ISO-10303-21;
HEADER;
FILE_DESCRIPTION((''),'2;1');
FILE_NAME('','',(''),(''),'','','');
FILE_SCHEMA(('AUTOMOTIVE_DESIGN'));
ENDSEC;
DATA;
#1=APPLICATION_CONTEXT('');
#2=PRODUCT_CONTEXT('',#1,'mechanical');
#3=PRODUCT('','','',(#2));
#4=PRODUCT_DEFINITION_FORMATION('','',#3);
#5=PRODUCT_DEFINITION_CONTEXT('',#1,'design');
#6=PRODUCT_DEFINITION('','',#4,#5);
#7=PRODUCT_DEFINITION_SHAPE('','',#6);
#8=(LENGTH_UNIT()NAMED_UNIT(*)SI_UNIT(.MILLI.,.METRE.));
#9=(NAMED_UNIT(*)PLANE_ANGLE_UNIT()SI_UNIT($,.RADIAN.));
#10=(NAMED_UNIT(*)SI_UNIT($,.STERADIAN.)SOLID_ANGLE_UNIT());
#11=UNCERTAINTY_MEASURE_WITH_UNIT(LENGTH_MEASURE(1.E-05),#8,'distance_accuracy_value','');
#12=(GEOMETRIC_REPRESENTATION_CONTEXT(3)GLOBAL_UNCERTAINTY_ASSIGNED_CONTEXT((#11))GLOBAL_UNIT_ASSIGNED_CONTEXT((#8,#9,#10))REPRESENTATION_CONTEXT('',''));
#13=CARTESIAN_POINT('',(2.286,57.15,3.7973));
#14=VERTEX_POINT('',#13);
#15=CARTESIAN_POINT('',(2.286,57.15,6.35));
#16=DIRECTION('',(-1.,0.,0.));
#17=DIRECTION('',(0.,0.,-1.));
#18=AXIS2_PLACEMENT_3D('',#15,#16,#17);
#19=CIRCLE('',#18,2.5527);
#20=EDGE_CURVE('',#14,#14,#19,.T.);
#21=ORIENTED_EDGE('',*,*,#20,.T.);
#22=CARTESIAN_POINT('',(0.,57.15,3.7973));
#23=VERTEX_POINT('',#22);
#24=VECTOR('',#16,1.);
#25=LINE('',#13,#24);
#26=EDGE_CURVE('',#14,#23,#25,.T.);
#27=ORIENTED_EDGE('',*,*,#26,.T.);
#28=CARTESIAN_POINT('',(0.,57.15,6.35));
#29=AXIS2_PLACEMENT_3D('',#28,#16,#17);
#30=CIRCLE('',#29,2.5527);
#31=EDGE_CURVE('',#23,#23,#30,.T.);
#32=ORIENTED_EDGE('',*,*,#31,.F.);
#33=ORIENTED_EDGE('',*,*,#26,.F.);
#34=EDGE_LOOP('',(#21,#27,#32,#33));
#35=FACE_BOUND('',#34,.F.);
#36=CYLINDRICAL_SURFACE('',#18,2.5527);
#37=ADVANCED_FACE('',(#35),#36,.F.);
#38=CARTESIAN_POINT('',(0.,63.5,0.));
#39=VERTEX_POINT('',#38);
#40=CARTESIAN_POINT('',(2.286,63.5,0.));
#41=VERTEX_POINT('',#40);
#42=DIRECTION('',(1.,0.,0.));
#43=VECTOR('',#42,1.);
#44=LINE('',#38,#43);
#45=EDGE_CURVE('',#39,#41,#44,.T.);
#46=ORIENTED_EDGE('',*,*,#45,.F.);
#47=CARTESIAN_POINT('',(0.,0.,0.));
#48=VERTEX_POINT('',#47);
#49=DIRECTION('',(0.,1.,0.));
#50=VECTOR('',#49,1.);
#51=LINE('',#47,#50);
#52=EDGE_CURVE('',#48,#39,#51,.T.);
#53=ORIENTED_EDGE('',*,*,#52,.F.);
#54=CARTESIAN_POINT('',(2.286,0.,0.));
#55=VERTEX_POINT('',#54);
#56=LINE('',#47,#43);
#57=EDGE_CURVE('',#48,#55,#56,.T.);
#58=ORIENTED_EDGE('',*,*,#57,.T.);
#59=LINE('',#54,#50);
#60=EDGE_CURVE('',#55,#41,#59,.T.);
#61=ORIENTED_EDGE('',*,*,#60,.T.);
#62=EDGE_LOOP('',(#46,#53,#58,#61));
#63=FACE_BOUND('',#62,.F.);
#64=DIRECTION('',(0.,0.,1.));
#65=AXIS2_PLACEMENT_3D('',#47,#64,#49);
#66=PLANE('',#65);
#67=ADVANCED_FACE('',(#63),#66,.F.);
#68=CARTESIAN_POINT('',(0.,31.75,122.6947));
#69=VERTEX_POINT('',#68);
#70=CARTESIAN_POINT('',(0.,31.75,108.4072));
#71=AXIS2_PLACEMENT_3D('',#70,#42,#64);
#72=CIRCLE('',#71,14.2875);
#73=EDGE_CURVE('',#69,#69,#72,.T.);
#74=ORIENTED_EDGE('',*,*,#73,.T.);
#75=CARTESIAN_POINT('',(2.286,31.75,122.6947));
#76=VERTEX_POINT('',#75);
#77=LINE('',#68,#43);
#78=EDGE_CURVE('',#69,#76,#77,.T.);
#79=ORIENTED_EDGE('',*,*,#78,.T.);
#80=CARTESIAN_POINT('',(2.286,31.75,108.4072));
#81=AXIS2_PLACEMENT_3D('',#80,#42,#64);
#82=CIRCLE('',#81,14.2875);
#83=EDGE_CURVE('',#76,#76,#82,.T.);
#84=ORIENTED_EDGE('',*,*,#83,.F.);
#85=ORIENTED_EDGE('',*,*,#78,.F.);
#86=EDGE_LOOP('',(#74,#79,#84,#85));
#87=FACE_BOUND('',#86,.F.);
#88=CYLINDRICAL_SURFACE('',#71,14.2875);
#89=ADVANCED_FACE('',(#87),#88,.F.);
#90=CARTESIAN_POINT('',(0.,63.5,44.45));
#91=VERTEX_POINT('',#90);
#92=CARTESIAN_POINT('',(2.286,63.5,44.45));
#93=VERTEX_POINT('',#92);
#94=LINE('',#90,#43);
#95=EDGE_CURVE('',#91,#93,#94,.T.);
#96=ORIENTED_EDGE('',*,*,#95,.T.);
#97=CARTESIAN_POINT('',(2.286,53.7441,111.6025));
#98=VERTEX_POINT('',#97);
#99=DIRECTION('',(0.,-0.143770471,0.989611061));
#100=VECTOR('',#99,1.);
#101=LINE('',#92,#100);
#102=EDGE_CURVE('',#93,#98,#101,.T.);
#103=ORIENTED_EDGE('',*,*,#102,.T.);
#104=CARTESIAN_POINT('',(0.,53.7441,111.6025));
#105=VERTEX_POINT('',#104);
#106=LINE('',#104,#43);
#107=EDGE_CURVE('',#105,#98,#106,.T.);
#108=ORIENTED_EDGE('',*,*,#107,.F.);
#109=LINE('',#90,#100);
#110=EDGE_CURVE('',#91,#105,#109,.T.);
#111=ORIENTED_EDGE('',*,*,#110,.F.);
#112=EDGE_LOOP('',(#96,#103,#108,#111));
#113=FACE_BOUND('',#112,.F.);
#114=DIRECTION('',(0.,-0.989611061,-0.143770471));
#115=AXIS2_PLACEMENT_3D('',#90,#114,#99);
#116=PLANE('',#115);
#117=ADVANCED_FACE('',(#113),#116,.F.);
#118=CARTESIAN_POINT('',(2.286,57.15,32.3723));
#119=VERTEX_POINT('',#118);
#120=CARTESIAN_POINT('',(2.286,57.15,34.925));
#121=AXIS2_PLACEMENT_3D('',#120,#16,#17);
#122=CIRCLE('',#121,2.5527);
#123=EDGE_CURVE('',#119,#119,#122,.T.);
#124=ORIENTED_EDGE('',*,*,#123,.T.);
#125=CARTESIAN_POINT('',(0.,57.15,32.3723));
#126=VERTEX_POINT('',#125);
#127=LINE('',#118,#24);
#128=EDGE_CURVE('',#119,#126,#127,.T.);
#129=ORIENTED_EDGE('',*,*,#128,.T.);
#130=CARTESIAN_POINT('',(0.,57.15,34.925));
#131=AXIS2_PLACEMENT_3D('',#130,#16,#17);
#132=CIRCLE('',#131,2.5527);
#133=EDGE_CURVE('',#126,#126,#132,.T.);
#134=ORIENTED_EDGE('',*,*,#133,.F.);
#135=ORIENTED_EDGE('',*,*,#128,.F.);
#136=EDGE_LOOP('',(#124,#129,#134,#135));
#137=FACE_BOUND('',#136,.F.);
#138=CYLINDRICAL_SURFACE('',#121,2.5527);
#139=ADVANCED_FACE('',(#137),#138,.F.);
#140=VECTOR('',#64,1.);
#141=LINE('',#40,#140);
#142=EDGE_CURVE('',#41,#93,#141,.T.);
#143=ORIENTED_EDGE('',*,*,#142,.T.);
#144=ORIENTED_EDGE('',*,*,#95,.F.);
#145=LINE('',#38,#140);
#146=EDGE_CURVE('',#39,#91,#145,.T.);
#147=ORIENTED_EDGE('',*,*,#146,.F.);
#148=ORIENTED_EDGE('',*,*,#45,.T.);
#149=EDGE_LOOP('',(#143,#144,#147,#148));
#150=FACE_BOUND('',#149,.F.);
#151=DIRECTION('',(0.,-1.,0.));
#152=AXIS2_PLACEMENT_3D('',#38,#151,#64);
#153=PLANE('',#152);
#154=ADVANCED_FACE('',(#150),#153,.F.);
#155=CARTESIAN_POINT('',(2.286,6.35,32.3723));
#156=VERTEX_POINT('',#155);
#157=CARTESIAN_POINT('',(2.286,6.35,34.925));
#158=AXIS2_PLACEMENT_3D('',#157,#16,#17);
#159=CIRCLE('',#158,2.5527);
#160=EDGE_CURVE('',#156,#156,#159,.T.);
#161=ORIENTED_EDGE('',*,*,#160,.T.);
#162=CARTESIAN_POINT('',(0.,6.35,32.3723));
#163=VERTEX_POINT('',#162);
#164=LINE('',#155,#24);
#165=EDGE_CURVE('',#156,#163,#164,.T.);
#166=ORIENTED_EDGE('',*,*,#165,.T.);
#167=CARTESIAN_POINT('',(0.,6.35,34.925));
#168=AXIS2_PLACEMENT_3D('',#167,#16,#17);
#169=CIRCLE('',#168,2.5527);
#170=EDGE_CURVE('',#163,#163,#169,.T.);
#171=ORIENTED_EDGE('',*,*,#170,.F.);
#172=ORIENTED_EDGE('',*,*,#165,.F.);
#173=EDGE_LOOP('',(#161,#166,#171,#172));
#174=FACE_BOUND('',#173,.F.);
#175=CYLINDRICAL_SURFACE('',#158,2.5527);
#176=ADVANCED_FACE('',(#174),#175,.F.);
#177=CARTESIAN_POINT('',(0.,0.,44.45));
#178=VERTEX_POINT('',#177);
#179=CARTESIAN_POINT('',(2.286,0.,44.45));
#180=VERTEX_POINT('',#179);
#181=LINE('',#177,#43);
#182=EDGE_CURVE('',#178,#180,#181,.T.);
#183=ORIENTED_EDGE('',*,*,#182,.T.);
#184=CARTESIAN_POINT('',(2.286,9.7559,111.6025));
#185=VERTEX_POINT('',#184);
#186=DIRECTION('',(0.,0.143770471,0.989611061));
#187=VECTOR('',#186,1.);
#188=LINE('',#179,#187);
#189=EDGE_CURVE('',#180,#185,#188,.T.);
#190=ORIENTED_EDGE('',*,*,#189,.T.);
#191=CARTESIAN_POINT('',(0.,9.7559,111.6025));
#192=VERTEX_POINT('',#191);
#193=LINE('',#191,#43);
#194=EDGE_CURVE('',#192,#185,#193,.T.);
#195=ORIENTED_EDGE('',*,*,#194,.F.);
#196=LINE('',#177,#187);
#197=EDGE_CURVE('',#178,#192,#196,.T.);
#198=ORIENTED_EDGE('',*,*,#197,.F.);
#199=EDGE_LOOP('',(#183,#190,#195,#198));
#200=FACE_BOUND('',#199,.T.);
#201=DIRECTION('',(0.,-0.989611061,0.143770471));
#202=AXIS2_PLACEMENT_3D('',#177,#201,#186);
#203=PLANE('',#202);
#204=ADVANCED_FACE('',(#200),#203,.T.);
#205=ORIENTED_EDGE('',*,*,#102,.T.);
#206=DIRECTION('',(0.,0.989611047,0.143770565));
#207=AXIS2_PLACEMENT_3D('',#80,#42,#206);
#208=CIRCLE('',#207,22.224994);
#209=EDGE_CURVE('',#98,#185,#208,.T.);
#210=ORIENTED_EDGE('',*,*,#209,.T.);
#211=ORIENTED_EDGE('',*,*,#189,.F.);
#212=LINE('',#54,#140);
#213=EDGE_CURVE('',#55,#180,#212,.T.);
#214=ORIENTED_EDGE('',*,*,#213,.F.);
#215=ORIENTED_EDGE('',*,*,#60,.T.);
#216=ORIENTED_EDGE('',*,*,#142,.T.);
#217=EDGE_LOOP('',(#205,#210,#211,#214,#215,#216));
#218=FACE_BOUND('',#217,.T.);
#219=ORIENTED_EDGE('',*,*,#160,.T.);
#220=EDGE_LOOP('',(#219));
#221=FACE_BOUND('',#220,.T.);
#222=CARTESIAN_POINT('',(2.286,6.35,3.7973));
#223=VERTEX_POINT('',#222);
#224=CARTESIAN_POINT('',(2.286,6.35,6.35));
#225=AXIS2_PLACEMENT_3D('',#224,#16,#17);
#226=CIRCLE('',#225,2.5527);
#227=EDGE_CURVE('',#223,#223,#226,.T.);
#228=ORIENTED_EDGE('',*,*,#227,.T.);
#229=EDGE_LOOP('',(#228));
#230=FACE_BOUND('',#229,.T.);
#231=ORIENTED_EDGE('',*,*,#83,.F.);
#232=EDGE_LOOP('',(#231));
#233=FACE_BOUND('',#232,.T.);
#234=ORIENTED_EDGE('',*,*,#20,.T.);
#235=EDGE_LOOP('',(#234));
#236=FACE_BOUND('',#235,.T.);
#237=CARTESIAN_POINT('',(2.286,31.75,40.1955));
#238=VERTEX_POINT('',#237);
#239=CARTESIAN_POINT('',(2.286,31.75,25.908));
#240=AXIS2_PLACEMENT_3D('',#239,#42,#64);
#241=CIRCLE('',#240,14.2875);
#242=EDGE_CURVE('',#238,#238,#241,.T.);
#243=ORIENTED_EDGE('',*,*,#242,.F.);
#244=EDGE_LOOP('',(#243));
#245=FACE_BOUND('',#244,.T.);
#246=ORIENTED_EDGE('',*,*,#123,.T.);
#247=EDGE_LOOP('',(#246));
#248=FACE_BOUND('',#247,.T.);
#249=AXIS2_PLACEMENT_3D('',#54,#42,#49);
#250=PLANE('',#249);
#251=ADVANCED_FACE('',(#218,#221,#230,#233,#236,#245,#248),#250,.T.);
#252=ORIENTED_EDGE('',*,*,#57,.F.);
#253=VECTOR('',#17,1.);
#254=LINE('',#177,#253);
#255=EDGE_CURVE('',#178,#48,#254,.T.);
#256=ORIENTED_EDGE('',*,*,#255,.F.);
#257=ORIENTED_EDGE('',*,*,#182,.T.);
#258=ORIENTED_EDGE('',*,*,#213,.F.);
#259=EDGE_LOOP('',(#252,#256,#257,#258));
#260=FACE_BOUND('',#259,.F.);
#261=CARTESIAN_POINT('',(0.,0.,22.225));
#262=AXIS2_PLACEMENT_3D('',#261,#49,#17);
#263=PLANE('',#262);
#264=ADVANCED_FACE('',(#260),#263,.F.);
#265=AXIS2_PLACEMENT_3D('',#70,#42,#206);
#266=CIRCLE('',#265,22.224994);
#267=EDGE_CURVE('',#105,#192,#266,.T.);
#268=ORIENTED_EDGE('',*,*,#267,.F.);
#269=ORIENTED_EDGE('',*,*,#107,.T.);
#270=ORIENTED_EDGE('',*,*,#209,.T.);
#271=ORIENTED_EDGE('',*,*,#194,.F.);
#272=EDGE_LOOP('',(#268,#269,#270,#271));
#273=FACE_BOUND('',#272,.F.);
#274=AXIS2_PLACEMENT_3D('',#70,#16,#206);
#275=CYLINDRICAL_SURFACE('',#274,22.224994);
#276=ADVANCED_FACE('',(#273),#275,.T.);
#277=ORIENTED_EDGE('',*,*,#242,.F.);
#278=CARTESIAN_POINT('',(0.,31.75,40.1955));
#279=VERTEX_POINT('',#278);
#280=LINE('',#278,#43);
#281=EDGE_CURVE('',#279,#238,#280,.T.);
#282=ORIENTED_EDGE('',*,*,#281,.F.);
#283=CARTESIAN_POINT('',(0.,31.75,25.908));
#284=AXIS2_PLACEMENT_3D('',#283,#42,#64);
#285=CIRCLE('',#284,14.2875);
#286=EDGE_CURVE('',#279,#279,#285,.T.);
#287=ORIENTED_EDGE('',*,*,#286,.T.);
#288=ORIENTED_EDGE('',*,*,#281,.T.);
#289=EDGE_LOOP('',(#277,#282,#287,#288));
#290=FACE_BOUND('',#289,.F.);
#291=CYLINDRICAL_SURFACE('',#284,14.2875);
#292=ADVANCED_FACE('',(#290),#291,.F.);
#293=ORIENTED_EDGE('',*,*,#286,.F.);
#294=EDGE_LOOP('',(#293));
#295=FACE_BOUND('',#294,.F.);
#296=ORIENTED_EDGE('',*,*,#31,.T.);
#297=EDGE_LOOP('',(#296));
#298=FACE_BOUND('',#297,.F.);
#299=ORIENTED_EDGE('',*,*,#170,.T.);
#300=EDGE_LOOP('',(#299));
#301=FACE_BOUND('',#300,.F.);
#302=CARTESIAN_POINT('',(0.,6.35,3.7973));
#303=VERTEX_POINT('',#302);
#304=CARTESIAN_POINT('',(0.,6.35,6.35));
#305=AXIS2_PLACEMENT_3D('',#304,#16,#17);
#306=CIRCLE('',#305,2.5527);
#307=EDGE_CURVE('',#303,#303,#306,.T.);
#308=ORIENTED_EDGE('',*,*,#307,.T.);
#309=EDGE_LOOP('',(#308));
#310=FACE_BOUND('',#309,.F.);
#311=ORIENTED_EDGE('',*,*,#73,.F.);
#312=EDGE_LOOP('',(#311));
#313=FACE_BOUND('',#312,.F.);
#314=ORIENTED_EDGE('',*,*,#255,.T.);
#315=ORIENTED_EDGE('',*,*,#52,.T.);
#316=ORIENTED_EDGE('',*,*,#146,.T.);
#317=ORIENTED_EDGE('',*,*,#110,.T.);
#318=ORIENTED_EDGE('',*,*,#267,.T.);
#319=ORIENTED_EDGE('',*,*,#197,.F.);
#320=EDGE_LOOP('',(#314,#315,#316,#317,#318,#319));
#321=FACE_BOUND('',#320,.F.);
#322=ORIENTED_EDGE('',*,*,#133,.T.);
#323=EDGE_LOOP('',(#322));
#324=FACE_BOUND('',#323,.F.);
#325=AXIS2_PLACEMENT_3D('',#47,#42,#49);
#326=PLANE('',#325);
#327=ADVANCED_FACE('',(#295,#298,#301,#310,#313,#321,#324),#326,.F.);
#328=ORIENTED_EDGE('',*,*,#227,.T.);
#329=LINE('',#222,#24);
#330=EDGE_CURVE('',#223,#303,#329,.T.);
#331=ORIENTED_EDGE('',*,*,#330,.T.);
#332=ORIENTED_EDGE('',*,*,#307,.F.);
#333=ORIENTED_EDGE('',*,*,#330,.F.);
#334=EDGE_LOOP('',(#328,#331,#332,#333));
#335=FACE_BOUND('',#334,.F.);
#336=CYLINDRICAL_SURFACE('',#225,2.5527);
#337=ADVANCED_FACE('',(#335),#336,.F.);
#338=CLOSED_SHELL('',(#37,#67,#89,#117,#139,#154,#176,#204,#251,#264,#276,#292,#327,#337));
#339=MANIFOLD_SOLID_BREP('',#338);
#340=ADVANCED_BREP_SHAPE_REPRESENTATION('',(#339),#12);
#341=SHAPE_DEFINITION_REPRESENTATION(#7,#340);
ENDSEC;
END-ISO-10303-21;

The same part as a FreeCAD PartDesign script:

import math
import FreeCAD as App
import Part
import Sketcher

V = App.Vector
Q = App.Units.Quantity

doc = App.newDocument("Part")
body = doc.addObject("PartDesign::Body", "Body")

# Sketch on YZ plane
sketch1 = body.newObject("Sketcher::SketchObject", "Sketch")
sketch1.AttachmentSupport = (doc.getObject("YZ_Plane"), [""])
sketch1.MapMode = "FlatFace"
sketch1.addGeometry(Part.LineSegment(V(0, 44.45, 0), V(0, 0, 0)), False)
sketch1.addGeometry(Part.LineSegment(V(0, 0, 0), V(63.5, 0, 0)), False)
sketch1.addGeometry(Part.LineSegment(V(63.5, 0, 0), V(63.5, 44.45, 0)), False)
sketch1.addGeometry(Part.LineSegment(V(63.5, 44.45, 0), V(53.7441, 111.6025, 0)), False)
sketch1.addGeometry(Part.ArcOfCircle(Part.Circle(V(31.75, 108.4072, 0), V(0, 0, 1), 22.224994), math.radians(8.266092), math.radians(171.733908)), False)
sketch1.addGeometry(Part.LineSegment(V(9.7559, 111.6025, 0), V(0, 44.45, 0)), False)
sketch1.addConstraint(Sketcher.Constraint("Coincident", 0, 2, 1, 1))
sketch1.addConstraint(Sketcher.Constraint("Coincident", 1, 2, 2, 1))
sketch1.addConstraint(Sketcher.Constraint("Coincident", 2, 2, 3, 1))
sketch1.addConstraint(Sketcher.Constraint("Tangent", 3, 2, 4, 1))
sketch1.addConstraint(Sketcher.Constraint("Tangent", 4, 2, 5, 1))
sketch1.addConstraint(Sketcher.Constraint("Coincident", 5, 2, 0, 1))
sketch1.addConstraint(Sketcher.Constraint("Vertical", 0))
sketch1.addConstraint(Sketcher.Constraint("Horizontal", 1))
sketch1.addConstraint(Sketcher.Constraint("Vertical", 2))
sketch1.addConstraint(Sketcher.Constraint("Coincident", 0, 2, -1, 1))
sketch1.addConstraint(Sketcher.Constraint("Horizontal", 3, 2, 4, 2))
sketch1.addConstraint(Sketcher.Constraint("Horizontal", 2, 2, 5, 2))
sketch1.addConstraint(Sketcher.Constraint("DistanceX", 1, 1, 1, 2, Q("2.5 in")))
sketch1.addConstraint(Sketcher.Constraint("Radius", 4, Q("0.875 in")))
sketch1.addConstraint(Sketcher.Constraint("DistanceY", 0, 2, 0, 1, Q("1.75 in")))
sketch1.addConstraint(Sketcher.Constraint("DistanceY", 2, 2, 4, 3, Q("2.518 in")))
pad1 = body.newObject("PartDesign::Pad", "Pad")
pad1.Profile = sketch1
pad1.Length = Q("0.09 in")

# Sketch on YZ plane
sketch2 = body.newObject("Sketcher::SketchObject", "Sketch001")
sketch2.AttachmentSupport = (doc.getObject("YZ_Plane"), [""])
sketch2.MapMode = "FlatFace"
sketch2.addGeometry(Part.Circle(V(31.75, 108.4072, 0), V(0, 0, 1), 14.2875), False)
sketch2.addGeometry(Part.Circle(V(31.75, 25.908, 0), V(0, 0, 1), 14.2875), False)
sketch2.addConstraint(Sketcher.Constraint("Equal", 0, 1))
sketch2.addConstraint(Sketcher.Constraint("Vertical", 0, 3, 1, 3))
sketch2.addConstraint(Sketcher.Constraint("Diameter", 0, Q("1.125 in")))
sketch2.addConstraint(Sketcher.Constraint("DistanceX", -1, 1, 0, 3, Q("1.25 in")))
sketch2.addConstraint(Sketcher.Constraint("DistanceY", -1, 1, 1, 3, Q("1.02 in")))
sketch2.addConstraint(Sketcher.Constraint("DistanceY", -1, 1, 0, 3, Q("4.268 in")))
doc.recompute()
hole = body.newObject("PartDesign::Hole", "Hole")
hole.Profile = sketch2
hole.ThreadType = "None"
hole.Diameter = Q("1.125 in")
hole.DepthType = "ThroughAll"
hole.Reversed = True

# Sketch on YZ plane
sketch3 = body.newObject("Sketcher::SketchObject", "Sketch002")
sketch3.AttachmentSupport = (doc.getObject("YZ_Plane"), [""])
sketch3.MapMode = "FlatFace"
sketch3.AttachmentOffset = App.Placement(V(0, 0, 0.09 * 25.4), App.Rotation())
sketch3.addGeometry(Part.Circle(V(57.15, 34.925, 0), V(0, 0, 1), 2.5527), False)
sketch3.addGeometry(Part.Circle(V(57.15, 6.35, 0), V(0, 0, 1), 2.5527), False)
sketch3.addGeometry(Part.Circle(V(6.35, 34.925, 0), V(0, 0, 1), 2.5527), False)
sketch3.addGeometry(Part.Circle(V(6.35, 6.35, 0), V(0, 0, 1), 2.5527), False)
sketch3.addConstraint(Sketcher.Constraint("Equal", 0, 1))
sketch3.addConstraint(Sketcher.Constraint("Equal", 1, 2))
sketch3.addConstraint(Sketcher.Constraint("Equal", 2, 3))
sketch3.addConstraint(Sketcher.Constraint("Horizontal", 0, 3, 2, 3))
sketch3.addConstraint(Sketcher.Constraint("Horizontal", 1, 3, 3, 3))
sketch3.addConstraint(Sketcher.Constraint("Vertical", 0, 3, 1, 3))
sketch3.addConstraint(Sketcher.Constraint("Vertical", 2, 3, 3, 3))
sketch3.addConstraint(Sketcher.Constraint("Diameter", 0, Q("0.201 in")))
sketch3.addConstraint(Sketcher.Constraint("DistanceX", 2, 3, 0, 3, Q("2 in")))
sketch3.addConstraint(Sketcher.Constraint("DistanceX", -1, 1, 0, 3, Q("2.25 in")))
sketch3.addConstraint(Sketcher.Constraint("DistanceY", -1, 1, 1, 3, Q("0.25 in")))
sketch3.addConstraint(Sketcher.Constraint("DistanceY", -1, 1, 0, 3, Q("1.375 in")))
doc.recompute()
hole2 = body.newObject("PartDesign::Hole", "Hole001")
hole2.Profile = sketch3
hole2.ThreadType = "None"
hole2.Diameter = Q("0.201 in")
hole2.DepthType = "ThroughAll"

doc.recompute()
